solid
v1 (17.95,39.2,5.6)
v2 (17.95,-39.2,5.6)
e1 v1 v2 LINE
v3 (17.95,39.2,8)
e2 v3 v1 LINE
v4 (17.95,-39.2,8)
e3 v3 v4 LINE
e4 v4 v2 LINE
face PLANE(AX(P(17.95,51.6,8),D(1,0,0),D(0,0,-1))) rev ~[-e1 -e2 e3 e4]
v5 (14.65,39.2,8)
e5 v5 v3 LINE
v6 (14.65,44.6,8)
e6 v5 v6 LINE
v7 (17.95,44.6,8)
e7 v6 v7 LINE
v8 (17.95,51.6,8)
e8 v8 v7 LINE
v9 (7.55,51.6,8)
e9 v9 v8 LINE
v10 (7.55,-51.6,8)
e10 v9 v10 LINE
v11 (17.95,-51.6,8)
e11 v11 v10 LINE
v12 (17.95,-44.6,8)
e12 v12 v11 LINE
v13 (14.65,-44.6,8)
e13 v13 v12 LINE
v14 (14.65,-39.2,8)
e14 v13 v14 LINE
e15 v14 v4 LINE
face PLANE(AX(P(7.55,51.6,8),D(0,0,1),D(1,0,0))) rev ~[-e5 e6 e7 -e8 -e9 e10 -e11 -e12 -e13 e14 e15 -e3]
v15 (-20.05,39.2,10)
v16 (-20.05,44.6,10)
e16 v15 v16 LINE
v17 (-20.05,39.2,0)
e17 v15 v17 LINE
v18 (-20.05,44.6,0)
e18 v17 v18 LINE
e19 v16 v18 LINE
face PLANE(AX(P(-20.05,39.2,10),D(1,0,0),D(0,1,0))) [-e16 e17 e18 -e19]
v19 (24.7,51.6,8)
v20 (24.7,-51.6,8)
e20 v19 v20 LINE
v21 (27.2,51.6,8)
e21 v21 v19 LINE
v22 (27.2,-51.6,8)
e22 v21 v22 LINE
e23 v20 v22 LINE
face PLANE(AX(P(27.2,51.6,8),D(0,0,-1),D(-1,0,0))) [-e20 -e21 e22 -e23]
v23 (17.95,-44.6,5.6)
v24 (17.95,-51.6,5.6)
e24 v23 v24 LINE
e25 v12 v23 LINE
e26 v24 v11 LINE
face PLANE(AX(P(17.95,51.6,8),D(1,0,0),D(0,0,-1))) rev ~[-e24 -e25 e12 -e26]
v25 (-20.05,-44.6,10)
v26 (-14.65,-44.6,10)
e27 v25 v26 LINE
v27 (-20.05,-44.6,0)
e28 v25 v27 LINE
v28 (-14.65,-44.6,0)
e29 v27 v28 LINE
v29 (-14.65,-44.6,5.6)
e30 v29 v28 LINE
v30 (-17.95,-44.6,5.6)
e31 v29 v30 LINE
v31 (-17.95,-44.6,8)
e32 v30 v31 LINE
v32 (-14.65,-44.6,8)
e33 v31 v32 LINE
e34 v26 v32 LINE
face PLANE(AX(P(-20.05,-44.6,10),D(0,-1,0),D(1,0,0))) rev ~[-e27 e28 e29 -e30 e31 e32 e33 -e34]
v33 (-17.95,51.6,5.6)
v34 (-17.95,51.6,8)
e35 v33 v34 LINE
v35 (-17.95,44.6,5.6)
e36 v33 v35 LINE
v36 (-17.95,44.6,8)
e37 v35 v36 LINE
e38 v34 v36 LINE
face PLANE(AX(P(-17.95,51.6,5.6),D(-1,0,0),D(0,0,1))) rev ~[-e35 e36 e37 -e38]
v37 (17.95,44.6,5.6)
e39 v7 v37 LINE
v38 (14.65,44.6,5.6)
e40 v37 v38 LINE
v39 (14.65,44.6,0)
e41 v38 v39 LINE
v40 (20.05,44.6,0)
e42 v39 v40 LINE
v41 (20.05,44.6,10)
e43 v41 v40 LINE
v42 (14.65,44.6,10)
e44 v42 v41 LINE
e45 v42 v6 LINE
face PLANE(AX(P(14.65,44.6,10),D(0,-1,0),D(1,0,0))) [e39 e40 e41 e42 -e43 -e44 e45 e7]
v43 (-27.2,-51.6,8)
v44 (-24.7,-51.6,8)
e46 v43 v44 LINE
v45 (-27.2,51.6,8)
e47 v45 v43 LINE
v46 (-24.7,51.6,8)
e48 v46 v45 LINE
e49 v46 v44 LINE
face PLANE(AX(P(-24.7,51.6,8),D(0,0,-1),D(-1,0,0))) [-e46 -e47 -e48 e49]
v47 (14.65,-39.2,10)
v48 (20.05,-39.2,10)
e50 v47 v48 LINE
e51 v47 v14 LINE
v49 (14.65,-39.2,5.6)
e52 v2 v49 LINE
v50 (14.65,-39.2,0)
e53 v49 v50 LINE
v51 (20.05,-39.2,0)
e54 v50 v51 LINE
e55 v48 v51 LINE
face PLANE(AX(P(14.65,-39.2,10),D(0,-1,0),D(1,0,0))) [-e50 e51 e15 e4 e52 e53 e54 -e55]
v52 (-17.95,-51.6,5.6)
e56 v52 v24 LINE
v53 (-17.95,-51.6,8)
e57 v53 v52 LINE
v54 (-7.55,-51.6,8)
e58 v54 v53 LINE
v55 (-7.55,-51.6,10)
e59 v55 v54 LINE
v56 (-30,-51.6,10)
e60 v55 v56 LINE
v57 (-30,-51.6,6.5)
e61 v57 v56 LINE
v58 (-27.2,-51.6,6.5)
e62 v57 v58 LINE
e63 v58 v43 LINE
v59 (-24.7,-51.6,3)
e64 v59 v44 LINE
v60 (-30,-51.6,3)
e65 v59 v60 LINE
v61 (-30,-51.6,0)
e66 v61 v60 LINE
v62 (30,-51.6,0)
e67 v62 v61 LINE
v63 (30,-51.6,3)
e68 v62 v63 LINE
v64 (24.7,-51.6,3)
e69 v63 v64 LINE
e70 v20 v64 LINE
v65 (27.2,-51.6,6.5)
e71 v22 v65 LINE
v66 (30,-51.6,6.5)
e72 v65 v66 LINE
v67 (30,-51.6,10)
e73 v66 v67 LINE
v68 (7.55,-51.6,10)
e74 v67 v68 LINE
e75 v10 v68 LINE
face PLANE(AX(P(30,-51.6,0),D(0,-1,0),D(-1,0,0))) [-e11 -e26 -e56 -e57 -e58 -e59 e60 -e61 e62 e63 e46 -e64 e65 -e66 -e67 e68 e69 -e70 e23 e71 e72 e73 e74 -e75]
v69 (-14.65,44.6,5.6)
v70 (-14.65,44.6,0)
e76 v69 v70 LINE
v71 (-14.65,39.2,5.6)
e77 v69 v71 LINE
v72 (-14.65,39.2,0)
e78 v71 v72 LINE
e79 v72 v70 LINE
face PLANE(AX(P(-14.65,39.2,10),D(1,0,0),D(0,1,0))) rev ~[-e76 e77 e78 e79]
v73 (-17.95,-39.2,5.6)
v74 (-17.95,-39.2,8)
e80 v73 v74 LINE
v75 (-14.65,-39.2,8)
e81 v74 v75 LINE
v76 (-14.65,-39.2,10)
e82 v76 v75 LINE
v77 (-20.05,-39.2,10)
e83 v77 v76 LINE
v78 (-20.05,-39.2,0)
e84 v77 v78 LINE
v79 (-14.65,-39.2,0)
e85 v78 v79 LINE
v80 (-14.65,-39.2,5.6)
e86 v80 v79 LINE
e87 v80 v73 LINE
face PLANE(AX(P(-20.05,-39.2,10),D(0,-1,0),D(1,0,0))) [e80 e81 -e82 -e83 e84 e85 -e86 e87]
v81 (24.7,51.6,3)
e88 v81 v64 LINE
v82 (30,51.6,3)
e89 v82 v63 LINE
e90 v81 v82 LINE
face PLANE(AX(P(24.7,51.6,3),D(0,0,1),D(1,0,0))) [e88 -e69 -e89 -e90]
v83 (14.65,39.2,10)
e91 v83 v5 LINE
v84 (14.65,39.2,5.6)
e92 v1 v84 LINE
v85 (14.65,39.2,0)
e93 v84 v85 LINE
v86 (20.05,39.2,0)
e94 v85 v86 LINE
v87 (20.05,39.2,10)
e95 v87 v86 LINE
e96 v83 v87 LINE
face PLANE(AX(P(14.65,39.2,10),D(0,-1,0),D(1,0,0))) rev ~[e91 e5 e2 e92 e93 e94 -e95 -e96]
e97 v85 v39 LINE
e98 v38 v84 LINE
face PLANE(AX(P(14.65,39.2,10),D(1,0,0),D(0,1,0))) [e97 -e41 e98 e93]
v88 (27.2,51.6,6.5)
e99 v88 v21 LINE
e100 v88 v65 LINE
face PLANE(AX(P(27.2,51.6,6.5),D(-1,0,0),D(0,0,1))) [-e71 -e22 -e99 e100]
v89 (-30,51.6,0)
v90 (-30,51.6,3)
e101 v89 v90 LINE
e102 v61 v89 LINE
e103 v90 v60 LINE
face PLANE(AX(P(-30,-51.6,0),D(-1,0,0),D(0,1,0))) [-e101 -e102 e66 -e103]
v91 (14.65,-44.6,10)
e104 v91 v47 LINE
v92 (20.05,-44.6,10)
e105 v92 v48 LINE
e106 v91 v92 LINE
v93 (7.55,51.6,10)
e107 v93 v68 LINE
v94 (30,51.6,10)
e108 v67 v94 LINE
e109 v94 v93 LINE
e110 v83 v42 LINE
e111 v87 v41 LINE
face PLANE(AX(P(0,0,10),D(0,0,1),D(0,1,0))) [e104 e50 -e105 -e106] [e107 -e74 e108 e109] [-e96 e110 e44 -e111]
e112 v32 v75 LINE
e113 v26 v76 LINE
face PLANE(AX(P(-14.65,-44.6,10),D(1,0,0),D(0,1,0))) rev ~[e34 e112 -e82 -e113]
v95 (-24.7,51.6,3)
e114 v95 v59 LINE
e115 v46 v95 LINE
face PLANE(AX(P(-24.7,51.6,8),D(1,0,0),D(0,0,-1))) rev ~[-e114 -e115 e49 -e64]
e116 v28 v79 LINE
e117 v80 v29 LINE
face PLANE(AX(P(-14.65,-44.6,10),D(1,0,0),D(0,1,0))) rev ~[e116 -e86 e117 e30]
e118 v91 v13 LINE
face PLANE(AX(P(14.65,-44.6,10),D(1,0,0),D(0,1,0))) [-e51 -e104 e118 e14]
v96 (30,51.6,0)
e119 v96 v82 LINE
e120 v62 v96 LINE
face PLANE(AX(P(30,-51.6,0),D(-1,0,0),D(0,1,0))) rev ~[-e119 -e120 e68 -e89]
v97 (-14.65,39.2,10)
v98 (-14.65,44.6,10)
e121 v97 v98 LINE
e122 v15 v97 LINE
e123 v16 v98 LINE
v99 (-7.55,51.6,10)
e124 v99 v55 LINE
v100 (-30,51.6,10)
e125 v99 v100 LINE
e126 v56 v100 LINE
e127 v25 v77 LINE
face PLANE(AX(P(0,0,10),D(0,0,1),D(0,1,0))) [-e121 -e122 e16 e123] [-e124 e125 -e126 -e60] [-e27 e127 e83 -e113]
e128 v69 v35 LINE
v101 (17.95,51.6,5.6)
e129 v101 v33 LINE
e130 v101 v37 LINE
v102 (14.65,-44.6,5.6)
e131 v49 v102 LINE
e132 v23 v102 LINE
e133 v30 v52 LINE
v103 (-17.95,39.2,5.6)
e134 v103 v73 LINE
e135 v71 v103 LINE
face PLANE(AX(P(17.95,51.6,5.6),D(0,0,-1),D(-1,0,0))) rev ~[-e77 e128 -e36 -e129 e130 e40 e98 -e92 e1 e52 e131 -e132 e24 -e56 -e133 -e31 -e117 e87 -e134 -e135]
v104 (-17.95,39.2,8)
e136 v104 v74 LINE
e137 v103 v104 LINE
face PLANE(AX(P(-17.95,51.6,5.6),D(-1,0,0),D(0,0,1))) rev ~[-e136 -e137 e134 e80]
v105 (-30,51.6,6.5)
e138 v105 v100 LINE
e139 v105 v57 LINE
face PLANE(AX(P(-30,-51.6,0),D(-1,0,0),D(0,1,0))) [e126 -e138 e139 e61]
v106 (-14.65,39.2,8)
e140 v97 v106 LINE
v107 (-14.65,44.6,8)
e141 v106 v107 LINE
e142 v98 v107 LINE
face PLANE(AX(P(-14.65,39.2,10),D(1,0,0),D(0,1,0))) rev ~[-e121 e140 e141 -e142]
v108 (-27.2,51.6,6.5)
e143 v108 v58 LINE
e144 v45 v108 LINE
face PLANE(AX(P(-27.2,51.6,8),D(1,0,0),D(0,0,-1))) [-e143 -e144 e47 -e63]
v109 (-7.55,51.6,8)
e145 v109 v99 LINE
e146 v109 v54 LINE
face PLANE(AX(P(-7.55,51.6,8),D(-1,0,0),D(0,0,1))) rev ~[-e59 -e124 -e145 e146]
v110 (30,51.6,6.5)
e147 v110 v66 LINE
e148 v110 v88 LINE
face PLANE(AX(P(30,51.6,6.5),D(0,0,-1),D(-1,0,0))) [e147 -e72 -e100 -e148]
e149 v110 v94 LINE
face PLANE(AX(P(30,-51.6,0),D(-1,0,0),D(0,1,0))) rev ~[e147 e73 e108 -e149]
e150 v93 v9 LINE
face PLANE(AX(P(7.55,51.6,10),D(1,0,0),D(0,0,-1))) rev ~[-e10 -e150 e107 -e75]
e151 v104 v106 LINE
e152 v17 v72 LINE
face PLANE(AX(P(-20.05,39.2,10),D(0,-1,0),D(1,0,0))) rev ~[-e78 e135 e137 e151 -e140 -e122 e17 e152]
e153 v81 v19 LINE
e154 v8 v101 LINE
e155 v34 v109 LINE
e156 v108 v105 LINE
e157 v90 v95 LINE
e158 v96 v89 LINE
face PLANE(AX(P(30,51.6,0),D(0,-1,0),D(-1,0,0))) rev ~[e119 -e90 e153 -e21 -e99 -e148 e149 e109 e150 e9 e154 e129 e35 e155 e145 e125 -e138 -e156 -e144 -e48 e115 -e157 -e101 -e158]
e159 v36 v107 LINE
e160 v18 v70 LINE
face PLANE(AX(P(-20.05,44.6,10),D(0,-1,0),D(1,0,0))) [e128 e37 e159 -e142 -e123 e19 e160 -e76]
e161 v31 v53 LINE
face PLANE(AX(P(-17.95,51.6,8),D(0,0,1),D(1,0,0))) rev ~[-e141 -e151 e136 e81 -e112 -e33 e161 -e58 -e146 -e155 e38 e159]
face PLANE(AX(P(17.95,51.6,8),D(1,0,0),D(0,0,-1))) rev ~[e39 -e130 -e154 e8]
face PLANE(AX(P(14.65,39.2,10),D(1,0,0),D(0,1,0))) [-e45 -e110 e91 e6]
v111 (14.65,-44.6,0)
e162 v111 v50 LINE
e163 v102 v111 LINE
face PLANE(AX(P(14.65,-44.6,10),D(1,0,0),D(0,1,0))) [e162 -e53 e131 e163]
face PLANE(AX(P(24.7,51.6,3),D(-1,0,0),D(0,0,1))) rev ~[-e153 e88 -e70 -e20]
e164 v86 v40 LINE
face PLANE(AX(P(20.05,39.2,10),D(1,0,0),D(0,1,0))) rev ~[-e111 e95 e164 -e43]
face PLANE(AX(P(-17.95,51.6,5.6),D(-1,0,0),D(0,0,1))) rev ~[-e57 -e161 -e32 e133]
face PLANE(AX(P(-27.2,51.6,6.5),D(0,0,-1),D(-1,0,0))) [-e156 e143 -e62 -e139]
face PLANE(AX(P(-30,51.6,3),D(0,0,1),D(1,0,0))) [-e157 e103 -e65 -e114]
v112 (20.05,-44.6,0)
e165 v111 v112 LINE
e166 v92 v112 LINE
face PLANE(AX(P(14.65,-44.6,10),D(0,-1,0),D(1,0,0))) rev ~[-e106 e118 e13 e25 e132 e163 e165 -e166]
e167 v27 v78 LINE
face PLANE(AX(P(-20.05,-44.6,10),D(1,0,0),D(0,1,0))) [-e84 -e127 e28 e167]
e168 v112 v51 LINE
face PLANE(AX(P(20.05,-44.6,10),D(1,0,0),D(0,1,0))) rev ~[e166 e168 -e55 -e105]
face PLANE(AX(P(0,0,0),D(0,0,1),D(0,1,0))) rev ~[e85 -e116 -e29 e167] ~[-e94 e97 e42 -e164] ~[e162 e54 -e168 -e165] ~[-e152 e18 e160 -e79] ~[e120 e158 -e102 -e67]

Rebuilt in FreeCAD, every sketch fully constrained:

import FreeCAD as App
import Part
import Sketcher

V = App.Vector


def add_polygon(sketch, points):
    """Adds a closed chain of lines whose ends are joined by coincident constraints."""
    first, n = sketch.GeometryCount, len(points)
    for a, b in zip(points, points[1:] + points[:1]):
        sketch.addGeometry(Part.LineSegment(App.Vector(*a, 0), App.Vector(*b, 0)), False)
    for i in range(n):
        sketch.addConstraint(Sketcher.Constraint("Coincident", first + i, 2, first + (i + 1) % n, 1))

doc = App.newDocument("Part")
body = doc.addObject("PartDesign::Body", "Body")

sketch1 = body.newObject("Sketcher::SketchObject", "Sketch")
sketch1.AttachmentSupport = (doc.getObject("XY_Plane"), [""])
sketch1.MapMode = "FlatFace"
add_polygon(sketch1, [(-30, -52), (30, -52), (30, 52), (-30, 52)])
sketch1.addConstraint(Sketcher.Constraint("Horizontal", 0))
sketch1.addConstraint(Sketcher.Constraint("Vertical", 1))
sketch1.addConstraint(Sketcher.Constraint("Horizontal", 2))
sketch1.addConstraint(Sketcher.Constraint("Vertical", 3))
sketch1.addConstraint(Sketcher.Constraint("Symmetric", 0, 2, 2, 2, -1, 1))
sketch1.addConstraint(Sketcher.Constraint("DistanceX", 0, 1, 0, 2, 60.0))
sketch1.addConstraint(Sketcher.Constraint("DistanceY", 1, 1, 1, 2, 103.2))
pad1 = body.newObject("PartDesign::Pad", "Pad")
pad1.Profile = sketch1
pad1.Length = 10

sketch2 = body.newObject("Sketcher::SketchObject", "Sketch001")
sketch2.AttachmentSupport = (doc.getObject("XZ_Plane"), [""])
sketch2.MapMode = "FlatFace"
sketch2.AttachmentOffset = App.Placement(V(0, 0, -51.6), App.Rotation())
add_polygon(sketch2, [(27.2, 6.5), (30, 6.5), (30, 3), (24.7, 3), (24.7, 8), (27.2, 8)])
add_polygon(sketch2, [(-30, 3), (-30, 6.5), (-27.2, 6.5), (-27.2, 8), (-24.7, 8), (-24.7, 3)])
add_polygon(sketch2, [(-17.9, 8), (-7.5, 8), (-7.5, 10), (7.5, 10), (7.5, 8), (17.9, 8), (17.9, 5.6), (-17.9, 5.6)])
sketch2.addConstraint(Sketcher.Constraint("Horizontal", 0))
sketch2.addConstraint(Sketcher.Constraint("Vertical", 1))
sketch2.addConstraint(Sketcher.Constraint("Horizontal", 2))
sketch2.addConstraint(Sketcher.Constraint("Vertical", 3))
sketch2.addConstraint(Sketcher.Constraint("Horizontal", 4))
sketch2.addConstraint(Sketcher.Constraint("Vertical", 5))
sketch2.addConstraint(Sketcher.Constraint("Vertical", 6))
sketch2.addConstraint(Sketcher.Constraint("Horizontal", 7))
sketch2.addConstraint(Sketcher.Constraint("Vertical", 8))
sketch2.addConstraint(Sketcher.Constraint("Horizontal", 9))
sketch2.addConstraint(Sketcher.Constraint("Vertical", 10))
sketch2.addConstraint(Sketcher.Constraint("Horizontal", 11))
sketch2.addConstraint(Sketcher.Constraint("Horizontal", 12))
sketch2.addConstraint(Sketcher.Constraint("Vertical", 13))
sketch2.addConstraint(Sketcher.Constraint("Horizontal", 14))
sketch2.addConstraint(Sketcher.Constraint("Vertical", 15))
sketch2.addConstraint(Sketcher.Constraint("Horizontal", 16))
sketch2.addConstraint(Sketcher.Constraint("Vertical", 17))
sketch2.addConstraint(Sketcher.Constraint("Horizontal", 18))
sketch2.addConstraint(Sketcher.Constraint("Vertical", 19))
sketch2.addConstraint(Sketcher.Constraint("Symmetric", 0, 2, 6, 2, -2))
sketch2.addConstraint(Sketcher.Constraint("Symmetric", 4, 2, 8, 2, -2))
sketch2.addConstraint(Sketcher.Constraint("Symmetric", 2, 2, 10, 2, -2))
sketch2.addConstraint(Sketcher.Constraint("Symmetric", 12, 2, 15, 2, -2))
sketch2.addConstraint(Sketcher.Constraint("Horizontal", 9, 2, 12, 2))
sketch2.addConstraint(Sketcher.Constraint("Equal", 12, 16))
sketch2.addConstraint(Sketcher.Constraint("DistanceY", 3, 1, 3, 2, 5.0))
sketch2.addConstraint(Sketcher.Constraint("DistanceY", 13, 1, 13, 2, 2.0))
sketch2.addConstraint(Sketcher.Constraint("DistanceX", 0, 1, 0, 2, 2.8))
sketch2.addConstraint(Sketcher.Constraint("DistanceX", 2, 2, 2, 1, 5.3))
sketch2.addConstraint(Sketcher.Constraint("DistanceX", 12, 1, 12, 2, 10.4))
sketch2.addConstraint(Sketcher.Constraint("DistanceX", 14, 1, 14, 2, 15.1))
sketch2.addConstraint(Sketcher.Constraint("DistanceY", 1, 2, 1, 1, 3.5))
sketch2.addConstraint(Sketcher.Constraint("DistanceY", 17, 2, 17, 1, 2.4))
sketch2.addConstraint(Sketcher.Constraint("DistanceX", -1, 1, 0, 2, 30.0))
sketch2.addConstraint(Sketcher.Constraint("DistanceY", -1, 1, 1, 2, 3.0))
pocket1 = body.newObject("PartDesign::Pocket", "Pocket")
pocket1.Profile = sketch2
pocket1.Type = "ThroughAll"
pocket1.Reversed = True

sketch3 = body.newObject("Sketcher::SketchObject", "Sketch002")
sketch3.AttachmentSupport = (doc.getObject("XY_Plane"), [""])
sketch3.MapMode = "FlatFace"
sketch3.AttachmentOffset = App.Placement(V(0, 0, 10), App.Rotation())
add_polygon(sketch3, [(15, -39), (15, -45), (20, -45), (20, -39)])
add_polygon(sketch3, [(15, 45), (15, 39), (20, 39), (20, 45)])
add_polygon(sketch3, [(-20, 45), (-20, 39), (-15, 39), (-15, 45)])
add_polygon(sketch3, [(-20, -39), (-20, -45), (-15, -45), (-15, -39)])
sketch3.addConstraint(Sketcher.Constraint("Vertical", 0))
sketch3.addConstraint(Sketcher.Constraint("Horizontal", 1))
sketch3.addConstraint(Sketcher.Constraint("Vertical", 2))
sketch3.addConstraint(Sketcher.Constraint("Horizontal", 3))
sketch3.addConstraint(Sketcher.Constraint("Vertical", 4))
sketch3.addConstraint(Sketcher.Constraint("Horizontal", 5))
sketch3.addConstraint(Sketcher.Constraint("Vertical", 6))
sketch3.addConstraint(Sketcher.Constraint("Horizontal", 7))
sketch3.addConstraint(Sketcher.Constraint("Vertical", 8))
sketch3.addConstraint(Sketcher.Constraint("Horizontal", 9))
sketch3.addConstraint(Sketcher.Constraint("Vertical", 10))
sketch3.addConstraint(Sketcher.Constraint("Horizontal", 11))
sketch3.addConstraint(Sketcher.Constraint("Vertical", 12))
sketch3.addConstraint(Sketcher.Constraint("Horizontal", 13))
sketch3.addConstraint(Sketcher.Constraint("Vertical", 14))
sketch3.addConstraint(Sketcher.Constraint("Horizontal", 15))
sketch3.addConstraint(Sketcher.Constraint("Symmetric", 2, 2, 8, 2, -1, 1))
sketch3.addConstraint(Sketcher.Constraint("Symmetric", 0, 2, 10, 2, -1, 1))
sketch3.addConstraint(Sketcher.Constraint("Symmetric", 6, 2, 12, 2, -1, 1))
sketch3.addConstraint(Sketcher.Constraint("Symmetric", 4, 2, 14, 2, -1, 1))
sketch3.addConstraint(Sketcher.Constraint("Symmetric", 5, 2, 8, 2, -2))
sketch3.addConstraint(Sketcher.Constraint("Symmetric", 7, 2, 10, 2, -2))
sketch3.addConstraint(Sketcher.Constraint("Equal", 15, 0))
sketch3.addConstraint(Sketcher.Constraint("DistanceX", 1, 1, 1, 2, 5.4))
sketch3.addConstraint(Sketcher.Constraint("DistanceY", 0, 2, -1, 1, 44.6))
sketch3.addConstraint(Sketcher.Constraint("DistanceX", 8, 2, 4, 2, 34.7))
pocket2 = body.newObject("PartDesign::Pocket", "Pocket001")
pocket2.Profile = sketch3
pocket2.Type = "ThroughAll"

doc.recompute()
